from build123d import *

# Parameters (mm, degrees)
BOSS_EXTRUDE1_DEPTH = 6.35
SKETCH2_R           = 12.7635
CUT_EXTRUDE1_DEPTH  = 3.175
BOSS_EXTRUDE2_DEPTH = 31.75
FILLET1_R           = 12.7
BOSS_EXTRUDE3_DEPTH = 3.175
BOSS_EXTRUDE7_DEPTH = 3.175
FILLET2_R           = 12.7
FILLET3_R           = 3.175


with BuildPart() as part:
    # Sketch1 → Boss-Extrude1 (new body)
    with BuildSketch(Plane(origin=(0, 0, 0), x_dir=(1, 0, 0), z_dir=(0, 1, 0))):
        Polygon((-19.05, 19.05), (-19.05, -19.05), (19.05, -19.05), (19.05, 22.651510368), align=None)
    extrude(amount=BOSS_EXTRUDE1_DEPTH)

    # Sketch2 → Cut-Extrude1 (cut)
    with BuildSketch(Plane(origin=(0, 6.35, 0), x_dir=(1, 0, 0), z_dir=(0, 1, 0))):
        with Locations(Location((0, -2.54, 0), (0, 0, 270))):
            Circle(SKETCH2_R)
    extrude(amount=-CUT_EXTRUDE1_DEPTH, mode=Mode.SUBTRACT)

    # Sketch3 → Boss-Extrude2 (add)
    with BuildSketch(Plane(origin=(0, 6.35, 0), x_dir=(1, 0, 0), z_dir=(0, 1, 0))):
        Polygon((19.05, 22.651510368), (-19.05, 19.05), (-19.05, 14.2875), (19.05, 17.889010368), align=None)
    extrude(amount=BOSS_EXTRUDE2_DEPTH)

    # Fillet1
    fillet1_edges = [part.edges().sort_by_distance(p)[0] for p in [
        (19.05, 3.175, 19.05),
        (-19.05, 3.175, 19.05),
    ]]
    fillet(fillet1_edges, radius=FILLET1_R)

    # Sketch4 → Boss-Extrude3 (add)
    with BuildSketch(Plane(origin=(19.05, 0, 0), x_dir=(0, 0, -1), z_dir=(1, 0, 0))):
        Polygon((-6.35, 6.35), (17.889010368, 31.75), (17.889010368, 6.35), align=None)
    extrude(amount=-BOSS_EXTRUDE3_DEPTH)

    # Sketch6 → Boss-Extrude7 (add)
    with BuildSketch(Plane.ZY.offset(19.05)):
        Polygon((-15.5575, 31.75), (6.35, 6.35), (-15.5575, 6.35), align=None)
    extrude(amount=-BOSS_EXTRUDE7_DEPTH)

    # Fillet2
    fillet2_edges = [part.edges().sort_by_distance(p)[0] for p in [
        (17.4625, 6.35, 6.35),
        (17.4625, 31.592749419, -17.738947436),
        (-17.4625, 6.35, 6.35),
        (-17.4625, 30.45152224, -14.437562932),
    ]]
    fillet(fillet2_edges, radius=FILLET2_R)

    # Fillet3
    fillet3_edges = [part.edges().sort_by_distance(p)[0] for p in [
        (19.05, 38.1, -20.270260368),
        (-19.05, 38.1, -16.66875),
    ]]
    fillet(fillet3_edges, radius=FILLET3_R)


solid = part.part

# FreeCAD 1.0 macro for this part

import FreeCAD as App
import Part
import Sketcher
Q = App.Units.Quantity


def edges_at(feature, points):
    """Names of the edges that pass closest to the given points."""
    edges = feature.Shape.Edges
    near = lambda p: min(range(len(edges)), key=lambda i: edges[i].distToShape(Part.Vertex(*p))[0])
    return sorted({f"Edge{near(p) + 1}" for p in points})


def add_polygon(sketch, points):
    """Adds a closed chain of lines whose ends are joined by coincident constraints."""
    first, n = sketch.GeometryCount, len(points)
    for a, b in zip(points, points[1:] + points[:1]):
        sketch.addGeometry(Part.LineSegment(App.Vector(*a, 0), App.Vector(*b, 0)), False)
    for i in range(n):
        sketch.addConstraint(Sketcher.Constraint("Coincident", first + i, 2, first + (i + 1) % n, 1))

doc = App.newDocument("Part")
params = doc.addObject("Spreadsheet::Sheet", "Params")
for row, (alias, value) in enumerate([
    ("sketch1_width", "1.5 in"),
    ("pad1_length", "0.25 in"),
    ("sketch2_diameter", "1.005 in"),
    ("pocket1_length", "0.125 in"),
    ("sketch3_height", "0.1875 in"),
    ("pad2_length", "1.25 in"),
    ("fillet_radius", "0.5 in"),
    ("sketch4_width", "1 in"),
    ("pad3_length", "0.125 in"),
    ("sketch5_width", "1 in"),
    ("pad4_length", "0.125 in"),
    ("fillet2_radius", "0.5 in"),
    ("fillet3_radius", "0.125 in"),
], start=1):
    params.set(f"A{row}", alias)
    params.set(f"B{row}", "=" + value)
    params.setAlias(f"B{row}", alias)

body = doc.addObject("PartDesign::Body", "Body")

# Sketch on XZ plane
sketch1 = body.newObject("Sketcher::SketchObject", "Sketch")
sketch1.AttachmentSupport = (doc.getObject("XZ_Plane"), [""])
sketch1.MapMode = "FlatFace"
add_polygon(sketch1, [(-19, -19), (-19, 19), (19, 19), (19, -23)])  # lines 0-3
sketch1.addConstraint(Sketcher.Constraint("Vertical", 0))
sketch1.addConstraint(Sketcher.Constraint("Horizontal", 1))
sketch1.addConstraint(Sketcher.Constraint("Vertical", 2))
sketch1.addConstraint(Sketcher.Constraint("Symmetric", 1, 2, 3, 2, -1, 1))
sketch1.addConstraint(Sketcher.Constraint("Equal", 1, 0))
sketch1.addConstraint(Sketcher.Constraint("DistanceX", 1, 1, 1, 2, Q("1.5 in")))
sketch1.addConstraint(Sketcher.Constraint("Angle", 3, Q("174.6 deg")))
sketch1.setExpression("Constraints[9]", "Params.sketch1_width")
pad1 = body.newObject("PartDesign::Pad", "Pad")
pad1.Profile = sketch1
pad1.setExpression("Length", "Params.pad1_length")
pad1.Reversed = True

# Sketch on XZ plane
sketch2 = body.newObject("Sketcher::SketchObject", "Sketch001")
sketch2.AttachmentSupport = (doc.getObject("XZ_Plane"), [""])
sketch2.MapMode = "FlatFace"
sketch2.AttachmentOffset = App.Placement(App.Vector(0, 0, -0.25 * 25.4), App.Rotation())
sketch2.addGeometry(Part.Circle(App.Vector(0, 3, 0), App.Vector(0, 0, 1), 13), False)
sketch2.addConstraint(Sketcher.Constraint("PointOnObject", 0, 3, -2))
sketch2.addConstraint(Sketcher.Constraint("Diameter", 0, Q("1.005 in")))
sketch2.addConstraint(Sketcher.Constraint("DistanceY", -1, 1, 0, 3, Q("0.1 in")))
sketch2.setExpression("Constraints[1]", "Params.sketch2_diameter")
pocket1 = body.newObject("PartDesign::Pocket", "Pocket")
pocket1.Profile = sketch2
pocket1.setExpression("Length", "Params.pocket1_length")
pocket1.Reversed = True

# Sketch on XZ plane
sketch3 = body.newObject("Sketcher::SketchObject", "Sketch002")
sketch3.AttachmentSupport = (doc.getObject("XZ_Plane"), [""])
sketch3.MapMode = "FlatFace"
sketch3.AttachmentOffset = App.Placement(App.Vector(0, 0, -0.25 * 25.4), App.Rotation())
add_polygon(sketch3, [(19.1, -22.7), (-19.1, -19.1), (-19.1, -14.3), (19.1, -17.9)])  # lines 0-3
sketch3.addConstraint(Sketcher.Constraint("Vertical", 1))
sketch3.addConstraint(Sketcher.Constraint("Vertical", 3))
sketch3.addConstraint(Sketcher.Constraint("Parallel", 0, 2))
sketch3.addConstraint(Sketcher.Constraint("Angle", 0, Q("174.6 deg")))
sketch3.addConstraint(Sketcher.Constraint("DistanceX", 0, 2, 2, 2, Q("1.5 in")))
sketch3.addConstraint(Sketcher.Constraint("DistanceY", 1, 1, 1, 2, Q("0.1875 in")))
sketch3.addConstraint(Sketcher.Constraint("DistanceX", 0, 2, -1, 1, Q("0.75 in")))
sketch3.addConstraint(Sketcher.Constraint("DistanceY", 0, 2, -1, 1, Q("0.75 in")))
sketch3.setExpression("Constraints[9]", "Params.sketch3_height")
pad2 = body.newObject("PartDesign::Pad", "Pad001")
pad2.Profile = sketch3
pad2.setExpression("Length", "Params.pad2_length")
pad2.Reversed = True
doc.recompute()

fillet = body.newObject("PartDesign::Fillet", "Fillet")
fillet.Base = (pad2, edges_at(pad2, [(19.05, 3.175, 19.05), (-19.05, 3.175, 19.05)]))
fillet.setExpression("Radius", "Params.fillet_radius")

# Sketch on YZ plane
sketch4 = body.newObject("Sketcher::SketchObject", "Sketch003")
sketch4.AttachmentSupport = (doc.getObject("YZ_Plane"), [""])
sketch4.MapMode = "FlatFace"
sketch4.AttachmentOffset = App.Placement(App.Vector(0, 0, 0.75 * 25.4), App.Rotation())
add_polygon(sketch4, [(32, -18), (6, 6), (6, -18)])  # lines 0-2
sketch4.addConstraint(Sketcher.Constraint("Vertical", 1))
sketch4.addConstraint(Sketcher.Constraint("Horizontal", 2))
sketch4.addConstraint(Sketcher.Constraint("DistanceX", 2, 1, 2, 2, Q("1 in")))
sketch4.addConstraint(Sketcher.Constraint("DistanceX", -1, 1, 0, 2, Q("0.25 in")))
sketch4.addConstraint(Sketcher.Constraint("DistanceY", -1, 1, 0, 2, Q("0.25 in")))
sketch4.addConstraint(Sketcher.Constraint("DistanceY", 1, 2, 1, 1, Q("24.23901 mm")))
sketch4.setExpression("Constraints[5]", "Params.sketch4_width")
pad3 = body.newObject("PartDesign::Pad", "Pad002")
pad3.Profile = sketch4
pad3.setExpression("Length", "Params.pad3_length")
pad3.Reversed = True

# Sketch on YZ plane
sketch5 = body.newObject("Sketcher::SketchObject", "Sketch004")
sketch5.AttachmentSupport = (doc.getObject("YZ_Plane"), [""])
sketch5.MapMode = "FlatFace"
sketch5.AttachmentOffset = App.Placement(App.Vector(0, 0, -0.75 * 25.4), App.Rotation())
add_polygon(sketch5, [(6, 6), (32, -16), (6, -16)])  # lines 0-2
sketch5.addConstraint(Sketcher.Constraint("Horizontal", 1))
sketch5.addConstraint(Sketcher.Constraint("Vertical", 2))
sketch5.addConstraint(Sketcher.Constraint("DistanceX", 1, 2, 1, 1, Q("1 in")))
sketch5.addConstraint(Sketcher.Constraint("DistanceX", -1, 1, 0, 2, Q("1.25 in")))
sketch5.addConstraint(Sketcher.Constraint("DistanceY", -1, 1, 2, 2, Q("0.25 in")))
sketch5.addConstraint(Sketcher.Constraint("DistanceY", 2, 1, 2, 2, Q("0.8625 in")))
sketch5.setExpression("Constraints[5]", "Params.sketch5_width")
pad4 = body.newObject("PartDesign::Pad", "Pad003")
pad4.Profile = sketch5
pad4.setExpression("Length", "Params.pad4_length")
doc.recompute()

fillet2 = body.newObject("PartDesign::Fillet", "Fillet001")
fillet2.Base = (pad4, edges_at(pad4, [
    (17.462, 6.35, 6.35),
    (17.462, 31.593, -17.739),
    (-17.462, 6.35, 6.35),
    (-17.462, 30.452, -14.438),
]))
fillet2.setExpression("Radius", "Params.fillet2_radius")
doc.recompute()

fillet3 = body.newObject("PartDesign::Fillet", "Fillet002")
fillet3.Base = (fillet2, edges_at(fillet2, [(19.05, 38.1, -20.27), (-19.05, 38.1, -16.669)]))
fillet3.setExpression("Radius", "Params.fillet3_radius")

doc.recompute()
